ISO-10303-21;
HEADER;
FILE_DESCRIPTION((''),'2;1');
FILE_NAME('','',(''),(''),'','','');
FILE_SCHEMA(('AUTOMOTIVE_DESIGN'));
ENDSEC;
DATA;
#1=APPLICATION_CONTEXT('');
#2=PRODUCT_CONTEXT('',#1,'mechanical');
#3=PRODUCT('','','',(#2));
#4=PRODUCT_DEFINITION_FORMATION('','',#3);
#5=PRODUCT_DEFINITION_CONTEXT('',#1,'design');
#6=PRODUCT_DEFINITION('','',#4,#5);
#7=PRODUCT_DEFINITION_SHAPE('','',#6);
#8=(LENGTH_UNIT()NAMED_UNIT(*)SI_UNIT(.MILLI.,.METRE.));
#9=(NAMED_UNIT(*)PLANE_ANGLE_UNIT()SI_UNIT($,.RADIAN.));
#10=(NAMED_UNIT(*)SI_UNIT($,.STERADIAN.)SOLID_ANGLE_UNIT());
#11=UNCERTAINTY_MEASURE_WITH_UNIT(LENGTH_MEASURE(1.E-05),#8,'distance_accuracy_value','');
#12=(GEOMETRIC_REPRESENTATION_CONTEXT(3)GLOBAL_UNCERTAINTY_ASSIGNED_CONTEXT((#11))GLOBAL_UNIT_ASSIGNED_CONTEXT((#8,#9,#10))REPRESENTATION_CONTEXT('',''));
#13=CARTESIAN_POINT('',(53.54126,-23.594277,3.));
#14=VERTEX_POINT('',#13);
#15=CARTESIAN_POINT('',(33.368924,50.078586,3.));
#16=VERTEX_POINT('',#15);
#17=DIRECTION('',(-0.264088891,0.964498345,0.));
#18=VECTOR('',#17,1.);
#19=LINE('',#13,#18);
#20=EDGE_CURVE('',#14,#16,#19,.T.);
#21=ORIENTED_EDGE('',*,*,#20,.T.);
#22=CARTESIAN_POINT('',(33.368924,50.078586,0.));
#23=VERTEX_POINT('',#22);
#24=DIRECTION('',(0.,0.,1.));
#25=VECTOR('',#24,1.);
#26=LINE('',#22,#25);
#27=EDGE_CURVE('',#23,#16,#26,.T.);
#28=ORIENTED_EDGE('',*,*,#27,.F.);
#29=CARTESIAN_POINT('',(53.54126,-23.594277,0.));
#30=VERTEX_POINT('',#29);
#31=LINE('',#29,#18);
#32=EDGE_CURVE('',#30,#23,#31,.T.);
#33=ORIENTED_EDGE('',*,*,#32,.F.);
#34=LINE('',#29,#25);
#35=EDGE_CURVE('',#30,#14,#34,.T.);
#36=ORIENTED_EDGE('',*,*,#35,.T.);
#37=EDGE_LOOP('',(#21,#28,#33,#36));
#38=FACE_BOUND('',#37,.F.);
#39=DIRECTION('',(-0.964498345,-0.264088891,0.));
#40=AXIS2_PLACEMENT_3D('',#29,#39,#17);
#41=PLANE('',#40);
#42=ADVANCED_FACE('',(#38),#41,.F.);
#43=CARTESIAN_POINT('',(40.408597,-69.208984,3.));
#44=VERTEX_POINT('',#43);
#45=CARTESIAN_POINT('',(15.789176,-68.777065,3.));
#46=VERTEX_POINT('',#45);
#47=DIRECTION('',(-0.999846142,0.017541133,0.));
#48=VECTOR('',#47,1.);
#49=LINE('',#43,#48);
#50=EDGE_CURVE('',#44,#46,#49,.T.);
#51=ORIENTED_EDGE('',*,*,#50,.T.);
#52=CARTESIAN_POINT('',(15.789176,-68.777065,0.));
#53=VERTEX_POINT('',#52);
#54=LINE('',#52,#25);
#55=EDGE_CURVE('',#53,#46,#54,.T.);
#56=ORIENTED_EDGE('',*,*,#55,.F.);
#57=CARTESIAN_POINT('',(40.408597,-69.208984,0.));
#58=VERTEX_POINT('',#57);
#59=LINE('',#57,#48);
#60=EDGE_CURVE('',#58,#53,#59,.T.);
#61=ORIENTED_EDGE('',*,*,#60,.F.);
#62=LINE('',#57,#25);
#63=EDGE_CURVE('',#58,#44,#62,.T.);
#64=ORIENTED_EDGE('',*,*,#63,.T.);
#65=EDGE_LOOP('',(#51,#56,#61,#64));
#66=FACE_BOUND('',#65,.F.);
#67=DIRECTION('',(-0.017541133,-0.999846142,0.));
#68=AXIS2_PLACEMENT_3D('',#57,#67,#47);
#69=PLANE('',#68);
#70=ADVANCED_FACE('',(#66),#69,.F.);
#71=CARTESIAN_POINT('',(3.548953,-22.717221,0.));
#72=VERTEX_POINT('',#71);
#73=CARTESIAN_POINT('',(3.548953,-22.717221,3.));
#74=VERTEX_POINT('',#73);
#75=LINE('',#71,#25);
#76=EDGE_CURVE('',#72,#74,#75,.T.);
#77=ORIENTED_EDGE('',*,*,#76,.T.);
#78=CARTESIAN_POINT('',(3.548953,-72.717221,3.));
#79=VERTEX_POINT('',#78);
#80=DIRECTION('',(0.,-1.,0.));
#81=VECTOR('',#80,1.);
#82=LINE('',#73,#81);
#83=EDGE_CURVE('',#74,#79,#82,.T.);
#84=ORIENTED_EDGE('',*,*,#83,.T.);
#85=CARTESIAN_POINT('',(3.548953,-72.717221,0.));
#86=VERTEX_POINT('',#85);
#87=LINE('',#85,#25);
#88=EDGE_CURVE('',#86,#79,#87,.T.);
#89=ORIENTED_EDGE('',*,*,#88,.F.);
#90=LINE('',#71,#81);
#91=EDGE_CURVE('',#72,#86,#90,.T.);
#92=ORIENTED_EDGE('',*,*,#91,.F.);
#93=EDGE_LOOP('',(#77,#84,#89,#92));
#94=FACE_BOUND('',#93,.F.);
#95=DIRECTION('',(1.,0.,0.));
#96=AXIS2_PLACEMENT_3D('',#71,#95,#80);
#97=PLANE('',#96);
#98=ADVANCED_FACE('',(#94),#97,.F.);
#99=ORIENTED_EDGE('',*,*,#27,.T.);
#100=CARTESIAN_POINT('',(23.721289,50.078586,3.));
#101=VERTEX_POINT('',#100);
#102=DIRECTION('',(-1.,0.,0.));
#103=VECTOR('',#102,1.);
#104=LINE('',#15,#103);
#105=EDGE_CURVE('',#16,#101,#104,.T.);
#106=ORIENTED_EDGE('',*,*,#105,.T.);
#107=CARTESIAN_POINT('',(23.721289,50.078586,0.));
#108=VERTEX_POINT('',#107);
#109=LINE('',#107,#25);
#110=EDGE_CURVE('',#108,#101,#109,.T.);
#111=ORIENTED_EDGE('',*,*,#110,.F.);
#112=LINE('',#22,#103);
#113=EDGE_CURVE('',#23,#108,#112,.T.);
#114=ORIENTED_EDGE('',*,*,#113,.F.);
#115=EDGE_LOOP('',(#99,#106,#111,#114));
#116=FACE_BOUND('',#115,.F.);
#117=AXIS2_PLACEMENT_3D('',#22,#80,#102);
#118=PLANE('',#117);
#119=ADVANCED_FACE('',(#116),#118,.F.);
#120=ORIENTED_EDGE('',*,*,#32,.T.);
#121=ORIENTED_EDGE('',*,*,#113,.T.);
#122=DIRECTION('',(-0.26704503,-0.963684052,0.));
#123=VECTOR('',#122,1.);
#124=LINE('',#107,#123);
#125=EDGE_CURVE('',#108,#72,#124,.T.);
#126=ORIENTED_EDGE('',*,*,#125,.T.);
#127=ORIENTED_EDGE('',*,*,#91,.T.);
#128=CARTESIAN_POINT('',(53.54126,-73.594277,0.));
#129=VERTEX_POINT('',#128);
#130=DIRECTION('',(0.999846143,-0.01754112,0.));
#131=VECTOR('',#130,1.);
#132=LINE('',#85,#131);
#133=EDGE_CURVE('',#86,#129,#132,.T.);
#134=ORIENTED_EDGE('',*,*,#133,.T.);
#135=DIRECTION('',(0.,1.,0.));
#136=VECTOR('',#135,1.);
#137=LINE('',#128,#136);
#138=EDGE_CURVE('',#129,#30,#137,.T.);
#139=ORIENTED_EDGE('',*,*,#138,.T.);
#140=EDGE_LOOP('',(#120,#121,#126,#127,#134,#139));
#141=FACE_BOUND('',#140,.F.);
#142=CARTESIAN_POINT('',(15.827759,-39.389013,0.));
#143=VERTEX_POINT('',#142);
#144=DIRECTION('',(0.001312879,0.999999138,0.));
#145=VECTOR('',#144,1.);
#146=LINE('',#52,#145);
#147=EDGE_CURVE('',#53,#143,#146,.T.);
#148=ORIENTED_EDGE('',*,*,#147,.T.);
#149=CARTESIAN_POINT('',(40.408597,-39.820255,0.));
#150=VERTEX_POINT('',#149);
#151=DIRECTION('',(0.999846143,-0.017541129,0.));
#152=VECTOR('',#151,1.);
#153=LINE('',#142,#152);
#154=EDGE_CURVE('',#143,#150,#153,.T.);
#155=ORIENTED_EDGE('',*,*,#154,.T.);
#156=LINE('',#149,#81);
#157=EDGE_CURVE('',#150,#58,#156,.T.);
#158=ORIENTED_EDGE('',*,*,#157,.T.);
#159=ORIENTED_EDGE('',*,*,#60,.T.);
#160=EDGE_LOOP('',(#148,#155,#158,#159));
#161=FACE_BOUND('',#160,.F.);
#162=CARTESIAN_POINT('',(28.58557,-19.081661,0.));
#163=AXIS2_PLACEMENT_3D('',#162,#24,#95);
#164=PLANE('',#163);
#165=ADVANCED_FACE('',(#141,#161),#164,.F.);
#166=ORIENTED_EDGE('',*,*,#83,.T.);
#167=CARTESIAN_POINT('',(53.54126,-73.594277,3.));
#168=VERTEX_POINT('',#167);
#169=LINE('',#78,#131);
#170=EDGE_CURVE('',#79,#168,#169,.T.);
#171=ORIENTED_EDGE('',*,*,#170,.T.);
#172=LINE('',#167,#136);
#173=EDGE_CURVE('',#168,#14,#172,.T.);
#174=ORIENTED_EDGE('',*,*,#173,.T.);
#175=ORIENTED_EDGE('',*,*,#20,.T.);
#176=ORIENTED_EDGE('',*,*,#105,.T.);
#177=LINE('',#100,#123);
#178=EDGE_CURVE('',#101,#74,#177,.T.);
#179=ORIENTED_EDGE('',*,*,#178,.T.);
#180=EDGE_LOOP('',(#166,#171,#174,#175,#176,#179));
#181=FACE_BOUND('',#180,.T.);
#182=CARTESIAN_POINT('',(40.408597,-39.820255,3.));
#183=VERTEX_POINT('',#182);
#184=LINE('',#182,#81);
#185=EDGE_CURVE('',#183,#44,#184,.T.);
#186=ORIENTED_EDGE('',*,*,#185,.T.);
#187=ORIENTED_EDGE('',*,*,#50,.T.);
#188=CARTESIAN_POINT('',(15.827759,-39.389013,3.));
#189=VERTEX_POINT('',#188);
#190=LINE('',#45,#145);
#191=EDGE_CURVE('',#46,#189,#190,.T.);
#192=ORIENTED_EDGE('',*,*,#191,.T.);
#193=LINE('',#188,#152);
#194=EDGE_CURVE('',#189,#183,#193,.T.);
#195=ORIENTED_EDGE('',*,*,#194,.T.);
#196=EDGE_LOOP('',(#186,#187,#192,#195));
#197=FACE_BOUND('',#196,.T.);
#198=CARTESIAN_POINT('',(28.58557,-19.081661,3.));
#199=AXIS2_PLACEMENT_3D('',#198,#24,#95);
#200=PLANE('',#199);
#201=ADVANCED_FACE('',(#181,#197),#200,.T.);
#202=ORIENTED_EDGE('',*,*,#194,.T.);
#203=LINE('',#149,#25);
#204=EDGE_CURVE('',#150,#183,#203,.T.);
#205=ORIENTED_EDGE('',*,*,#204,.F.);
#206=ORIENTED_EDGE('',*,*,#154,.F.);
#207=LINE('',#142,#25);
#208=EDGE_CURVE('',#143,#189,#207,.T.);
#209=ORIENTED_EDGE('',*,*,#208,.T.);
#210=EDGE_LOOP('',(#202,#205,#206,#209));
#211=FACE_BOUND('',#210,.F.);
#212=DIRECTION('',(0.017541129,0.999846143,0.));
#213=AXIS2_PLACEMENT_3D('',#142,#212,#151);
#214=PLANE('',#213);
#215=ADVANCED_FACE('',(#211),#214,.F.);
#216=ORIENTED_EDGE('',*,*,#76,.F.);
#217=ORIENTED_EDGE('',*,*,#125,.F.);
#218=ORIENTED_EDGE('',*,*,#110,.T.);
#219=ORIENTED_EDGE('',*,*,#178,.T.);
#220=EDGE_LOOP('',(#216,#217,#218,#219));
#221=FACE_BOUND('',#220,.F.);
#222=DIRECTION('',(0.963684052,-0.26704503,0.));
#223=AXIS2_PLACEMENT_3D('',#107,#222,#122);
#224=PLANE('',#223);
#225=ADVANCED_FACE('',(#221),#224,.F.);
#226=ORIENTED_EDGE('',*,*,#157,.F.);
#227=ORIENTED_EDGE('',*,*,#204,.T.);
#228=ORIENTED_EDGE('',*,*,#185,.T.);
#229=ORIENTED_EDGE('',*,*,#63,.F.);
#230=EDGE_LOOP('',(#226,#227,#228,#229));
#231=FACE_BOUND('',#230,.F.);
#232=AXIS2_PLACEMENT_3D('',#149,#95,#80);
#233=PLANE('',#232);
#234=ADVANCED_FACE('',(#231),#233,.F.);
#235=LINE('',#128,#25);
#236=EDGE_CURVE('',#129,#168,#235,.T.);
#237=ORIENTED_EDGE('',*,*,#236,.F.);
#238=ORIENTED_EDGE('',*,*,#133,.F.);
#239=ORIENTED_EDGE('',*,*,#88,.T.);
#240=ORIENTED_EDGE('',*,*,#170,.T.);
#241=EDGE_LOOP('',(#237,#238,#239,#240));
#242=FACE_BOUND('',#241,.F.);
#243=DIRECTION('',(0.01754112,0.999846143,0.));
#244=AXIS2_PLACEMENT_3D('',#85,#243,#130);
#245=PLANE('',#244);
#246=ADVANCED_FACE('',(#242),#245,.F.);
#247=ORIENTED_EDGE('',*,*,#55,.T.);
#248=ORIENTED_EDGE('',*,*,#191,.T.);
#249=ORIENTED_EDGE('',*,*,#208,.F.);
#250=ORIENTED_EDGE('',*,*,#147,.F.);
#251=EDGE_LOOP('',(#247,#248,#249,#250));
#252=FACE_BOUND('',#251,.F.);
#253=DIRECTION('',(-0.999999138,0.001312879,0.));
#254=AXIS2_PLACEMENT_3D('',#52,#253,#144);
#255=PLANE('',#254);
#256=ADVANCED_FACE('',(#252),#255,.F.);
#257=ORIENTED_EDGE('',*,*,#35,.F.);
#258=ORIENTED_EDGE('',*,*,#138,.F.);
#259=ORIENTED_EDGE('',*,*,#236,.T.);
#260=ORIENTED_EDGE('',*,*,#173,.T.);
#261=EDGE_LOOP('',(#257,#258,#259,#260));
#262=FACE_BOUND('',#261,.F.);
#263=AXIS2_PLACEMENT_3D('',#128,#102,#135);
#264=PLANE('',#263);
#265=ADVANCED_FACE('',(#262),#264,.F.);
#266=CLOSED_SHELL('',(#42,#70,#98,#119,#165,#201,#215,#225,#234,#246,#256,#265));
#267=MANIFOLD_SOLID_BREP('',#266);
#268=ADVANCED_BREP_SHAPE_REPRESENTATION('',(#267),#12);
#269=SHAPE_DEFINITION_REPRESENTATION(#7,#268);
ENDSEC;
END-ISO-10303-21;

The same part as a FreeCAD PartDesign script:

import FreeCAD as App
import Part
import Sketcher
from FreeCAD import Vector
Q = App.Units.Quantity

doc = App.newDocument("Part")
body = doc.addObject("PartDesign::Body", "Body")

# Sketch on XY plane
sketch1 = body.newObject("Sketcher::SketchObject", "Sketch")
sketch1.AttachmentSupport = (doc.getObject("XY_Plane"), [""])
sketch1.MapMode = "FlatFace"
sketch1.addGeometry(Part.LineSegment(Vector(3.548953, -22.717221, 0), Vector(3.548953, -72.717221, 0)), False)
sketch1.addGeometry(Part.LineSegment(Vector(3.548953, -72.717221, 0), Vector(53.54126, -73.594277, 0)), False)
sketch1.addGeometry(Part.LineSegment(Vector(53.54126, -73.594277, 0), Vector(53.54126, -23.594277, 0)), False)
sketch1.addGeometry(Part.LineSegment(Vector(53.54126, -23.594277, 0), Vector(33.368924, 50.078586, 0)), False)
sketch1.addGeometry(Part.LineSegment(Vector(33.368924, 50.078586, 0), Vector(23.721289, 50.078586, 0)), False)
sketch1.addGeometry(Part.LineSegment(Vector(23.721289, 50.078586, 0), Vector(3.548953, -22.717221, 0)), False)
sketch1.addGeometry(Part.LineSegment(Vector(40.408597, -69.208984, 0), Vector(15.789176, -68.777065, 0)), False)
sketch1.addGeometry(Part.LineSegment(Vector(15.789176, -68.777065, 0), Vector(15.827759, -39.389013, 0)), False)
sketch1.addGeometry(Part.LineSegment(Vector(15.827759, -39.389013, 0), Vector(40.408597, -39.820255, 0)), False)
sketch1.addGeometry(Part.LineSegment(Vector(40.408597, -39.820255, 0), Vector(40.408597, -69.208984, 0)), False)
sketch1.addConstraint(Sketcher.Constraint("Coincident", 0, 2, 1, 1))
sketch1.addConstraint(Sketcher.Constraint("Coincident", 1, 2, 2, 1))
sketch1.addConstraint(Sketcher.Constraint("Coincident", 2, 2, 3, 1))
sketch1.addConstraint(Sketcher.Constraint("Coincident", 3, 2, 4, 1))
sketch1.addConstraint(Sketcher.Constraint("Coincident", 4, 2, 5, 1))
sketch1.addConstraint(Sketcher.Constraint("Coincident", 5, 2, 0, 1))
sketch1.addConstraint(Sketcher.Constraint("Coincident", 6, 2, 7, 1))
sketch1.addConstraint(Sketcher.Constraint("Coincident", 7, 2, 8, 1))
sketch1.addConstraint(Sketcher.Constraint("Coincident", 8, 2, 9, 1))
sketch1.addConstraint(Sketcher.Constraint("Coincident", 9, 2, 6, 1))
sketch1.addConstraint(Sketcher.Constraint("Vertical", 0))
sketch1.addConstraint(Sketcher.Constraint("Vertical", 2))
sketch1.addConstraint(Sketcher.Constraint("Horizontal", 4))
sketch1.addConstraint(Sketcher.Constraint("Vertical", 9))
sketch1.addConstraint(Sketcher.Constraint("Parallel", 1, 6))
sketch1.addConstraint(Sketcher.Constraint("Parallel", 6, 8))
sketch1.addConstraint(Sketcher.Constraint("Equal", 0, 2))
sketch1.addConstraint(Sketcher.Constraint("DistanceY", 0, 2, 0, 1, Q("50 mm")))
sketch1.addConstraint(Sketcher.Constraint("Distance", 1, Q("50 mm")))
sketch1.addConstraint(Sketcher.Constraint("DistanceY", 9, 2, 9, 1, Q("29.388729 mm")))
sketch1.addConstraint(Sketcher.Constraint("DistanceX", 7, 2, 2, 2, Q("37.713501 mm")))
sketch1.addConstraint(Sketcher.Constraint("Distance", 5, Q("75.53908 mm")))
sketch1.addConstraint(Sketcher.Constraint("Distance", 6, Q("24.623209 mm")))
sketch1.addConstraint(Sketcher.Constraint("Distance", 8, Q("24.584621 mm")))
sketch1.addConstraint(Sketcher.Constraint("DistanceX", 4, 2, 4, 1, Q("9.647635 mm")))
sketch1.addConstraint(Sketcher.Constraint("DistanceY", 0, 2, -1, 1, Q("72.717221 mm")))
sketch1.addConstraint(Sketcher.Constraint("DistanceX", -1, 1, 1, 2, Q("53.54126 mm")))
sketch1.addConstraint(Sketcher.Constraint("DistanceX", -1, 1, 4, 2, Q("23.721289 mm")))
sketch1.addConstraint(Sketcher.Constraint("DistanceX", 0, 2, 3, 2, Q("29.819971 mm")))
sketch1.addConstraint(Sketcher.Constraint("DistanceY", 6, 2, 4, 2, Q("118.855651 mm")))
pad1 = body.newObject("PartDesign::Pad", "Pad")
pad1.Profile = sketch1
pad1.Length = 3

doc.recompute()
